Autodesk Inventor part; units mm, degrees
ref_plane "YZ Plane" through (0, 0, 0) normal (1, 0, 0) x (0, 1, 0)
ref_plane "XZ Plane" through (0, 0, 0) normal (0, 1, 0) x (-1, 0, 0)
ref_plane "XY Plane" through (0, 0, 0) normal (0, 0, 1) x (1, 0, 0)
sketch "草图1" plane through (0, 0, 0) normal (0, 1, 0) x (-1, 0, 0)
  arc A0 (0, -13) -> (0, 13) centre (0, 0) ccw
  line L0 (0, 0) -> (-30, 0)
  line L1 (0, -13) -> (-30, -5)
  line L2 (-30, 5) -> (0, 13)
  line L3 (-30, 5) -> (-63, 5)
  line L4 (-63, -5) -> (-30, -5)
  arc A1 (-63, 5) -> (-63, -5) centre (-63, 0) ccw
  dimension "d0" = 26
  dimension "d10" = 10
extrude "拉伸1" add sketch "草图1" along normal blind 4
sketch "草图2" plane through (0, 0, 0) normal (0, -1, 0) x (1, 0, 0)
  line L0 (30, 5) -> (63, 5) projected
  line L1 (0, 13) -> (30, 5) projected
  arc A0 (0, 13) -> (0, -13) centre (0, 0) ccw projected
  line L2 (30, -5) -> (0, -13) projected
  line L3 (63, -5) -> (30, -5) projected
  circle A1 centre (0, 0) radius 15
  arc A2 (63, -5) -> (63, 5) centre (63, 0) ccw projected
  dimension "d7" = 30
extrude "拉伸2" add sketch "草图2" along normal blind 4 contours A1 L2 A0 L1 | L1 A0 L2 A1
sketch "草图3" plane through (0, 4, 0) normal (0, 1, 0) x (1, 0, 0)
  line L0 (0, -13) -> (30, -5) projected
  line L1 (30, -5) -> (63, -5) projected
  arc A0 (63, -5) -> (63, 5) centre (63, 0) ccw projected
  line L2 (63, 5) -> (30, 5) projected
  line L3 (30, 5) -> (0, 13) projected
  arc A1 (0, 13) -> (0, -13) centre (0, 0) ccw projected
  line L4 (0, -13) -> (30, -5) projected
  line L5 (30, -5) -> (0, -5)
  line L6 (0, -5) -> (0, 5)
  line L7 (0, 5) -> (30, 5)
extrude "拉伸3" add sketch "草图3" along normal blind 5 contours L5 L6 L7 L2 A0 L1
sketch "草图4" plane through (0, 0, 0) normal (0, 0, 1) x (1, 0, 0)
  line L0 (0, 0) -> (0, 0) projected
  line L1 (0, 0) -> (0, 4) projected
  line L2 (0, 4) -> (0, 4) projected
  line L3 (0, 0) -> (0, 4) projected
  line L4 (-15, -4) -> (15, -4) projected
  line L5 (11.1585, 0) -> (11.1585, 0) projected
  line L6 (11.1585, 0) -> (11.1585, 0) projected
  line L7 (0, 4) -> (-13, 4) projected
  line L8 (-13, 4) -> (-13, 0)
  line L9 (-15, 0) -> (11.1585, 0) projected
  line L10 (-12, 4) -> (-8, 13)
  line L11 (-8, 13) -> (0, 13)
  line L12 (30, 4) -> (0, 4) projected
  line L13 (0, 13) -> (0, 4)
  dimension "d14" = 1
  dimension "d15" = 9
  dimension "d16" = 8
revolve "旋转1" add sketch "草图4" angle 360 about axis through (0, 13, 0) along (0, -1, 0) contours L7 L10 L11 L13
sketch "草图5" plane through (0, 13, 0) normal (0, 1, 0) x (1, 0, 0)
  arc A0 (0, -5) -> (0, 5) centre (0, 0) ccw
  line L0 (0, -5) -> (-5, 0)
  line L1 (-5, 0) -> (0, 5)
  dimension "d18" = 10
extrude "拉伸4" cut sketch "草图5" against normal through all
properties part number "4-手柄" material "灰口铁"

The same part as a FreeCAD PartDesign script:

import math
import FreeCAD as App
import Part
import Sketcher
from FreeCAD import Vector
Q = App.Units.Quantity

doc = App.newDocument("Part")
params = doc.addObject("Spreadsheet::Sheet", "Params")
for row, (alias, value) in enumerate([
    ("sketch1_radius", "13 mm"),
    ("sketch1_radius2", "5 mm"),
    ("sketch1_width", "33 mm"),
    ("pad1_length", "4 mm"),
    ("sketch2_diameter", "30 mm"),
    ("pad2_length", "4 mm"),
    ("sketch3_radius", "5 mm"),
    ("sketch3_width", "63 mm"),
    ("pad3_length", "5 mm"),
    ("sketch4_width", "8 mm"),
    ("sketch4_height", "9 mm"),
    ("sketch4_width2", "12 mm"),
    ("revolution_angle", "360 deg"),
    ("sketch5_radius", "5 mm"),
], start=1):
    params.set(f"A{row}", alias)
    params.set(f"B{row}", "=" + value)
    params.setAlias(f"B{row}", alias)

body = doc.addObject("PartDesign::Body", "Body")

sketch1 = body.newObject("Sketcher::SketchObject", "Sketch")
sketch1.AttachmentSupport = (doc.getObject("XZ_Plane"), [""])
sketch1.MapMode = "FlatFace"
sketch1.addGeometry(Part.LineSegment(Vector(30, -5, 0), Vector(0, -13, 0)), False)
sketch1.addGeometry(Part.ArcOfCircle(Part.Circle(Vector(0, 0, 0), Vector(0, 0, 1), 13), math.radians(90), math.radians(270)), False)
sketch1.addGeometry(Part.LineSegment(Vector(0, 13, 0), Vector(30, 5, 0)), False)
sketch1.addGeometry(Part.LineSegment(Vector(30, 5, 0), Vector(63, 5, 0)), False)
sketch1.addGeometry(Part.ArcOfCircle(Part.Circle(Vector(63, 0, 0), Vector(0, 0, 1), 5), math.radians(-90), math.radians(90)), False)
sketch1.addGeometry(Part.LineSegment(Vector(63, -5, 0), Vector(30, -5, 0)), False)
sketch1.addConstraint(Sketcher.Constraint("Coincident", 0, 2, 1, 2))
sketch1.addConstraint(Sketcher.Constraint("Coincident", 1, 1, 2, 1))
sketch1.addConstraint(Sketcher.Constraint("Coincident", 2, 2, 3, 1))
sketch1.addConstraint(Sketcher.Constraint("Tangent", 3, 2, 4, 2))
sketch1.addConstraint(Sketcher.Constraint("Tangent", 4, 1, 5, 1))
sketch1.addConstraint(Sketcher.Constraint("Coincident", 5, 2, 0, 1))
sketch1.addConstraint(Sketcher.Constraint("Horizontal", 3))
sketch1.addConstraint(Sketcher.Constraint("Horizontal", 5))
sketch1.addConstraint(Sketcher.Constraint("Coincident", 1, 3, -1, 1))
sketch1.addConstraint(Sketcher.Constraint("Symmetric", 2, 2, 5, 2, -1))
sketch1.addConstraint(Sketcher.Constraint("PointOnObject", 0, 2, -2))
sketch1.addConstraint(Sketcher.Constraint("PointOnObject", 1, 1, -2))
sketch1.addConstraint(Sketcher.Constraint("Radius", 1, Q("13 mm")))
sketch1.addConstraint(Sketcher.Constraint("Radius", 4, Q("5 mm")))
sketch1.addConstraint(Sketcher.Constraint("DistanceX", 3, 1, 3, 2, Q("33 mm")))
sketch1.addConstraint(Sketcher.Constraint("DistanceX", -1, 1, 4, 3, Q("63 mm")))
sketch1.setExpression("Constraints[12]", "Params.sketch1_radius")
sketch1.setExpression("Constraints[13]", "Params.sketch1_radius2")
sketch1.setExpression("Constraints[14]", "Params.sketch1_width")
pad1 = body.newObject("PartDesign::Pad", "Pad")
pad1.Profile = sketch1
pad1.setExpression("Length", "Params.pad1_length")
pad1.Reversed = True

sketch2 = body.newObject("Sketcher::SketchObject", "Sketch001")
sketch2.AttachmentSupport = (doc.getObject("XZ_Plane"), [""])
sketch2.MapMode = "FlatFace"
sketch2.addGeometry(Part.Circle(Vector(0, 0, 0), Vector(0, 0, 1), 15), False)
sketch2.addConstraint(Sketcher.Constraint("Coincident", 0, 3, -1, 1))
sketch2.addConstraint(Sketcher.Constraint("Diameter", 0, Q("30 mm")))
sketch2.setExpression("Constraints[1]", "Params.sketch2_diameter")
pad2 = body.newObject("PartDesign::Pad", "Pad001")
pad2.Profile = sketch2
pad2.setExpression("Length", "Params.pad2_length")

sketch3 = body.newObject("Sketcher::SketchObject", "Sketch002")
sketch3.AttachmentSupport = (doc.getObject("XZ_Plane"), [""])
sketch3.MapMode = "FlatFace"
sketch3.AttachmentOffset = App.Placement(Vector(0, 0, -4), App.Rotation())
sketch3.addGeometry(Part.LineSegment(Vector(0, 5, 0), Vector(63, 5, 0)), False)
sketch3.addGeometry(Part.ArcOfCircle(Part.Circle(Vector(63, 0, 0), Vector(0, 0, 1), 5), math.radians(-90), math.radians(90)), False)
sketch3.addGeometry(Part.LineSegment(Vector(63, -5, 0), Vector(0, -5, 0)), False)
sketch3.addGeometry(Part.LineSegment(Vector(0, -5, 0), Vector(0, 5, 0)), False)
sketch3.addConstraint(Sketcher.Constraint("Tangent", 0, 2, 1, 2))
sketch3.addConstraint(Sketcher.Constraint("Tangent", 1, 1, 2, 1))
sketch3.addConstraint(Sketcher.Constraint("Coincident", 2, 2, 3, 1))
sketch3.addConstraint(Sketcher.Constraint("Coincident", 3, 2, 0, 1))
sketch3.addConstraint(Sketcher.Constraint("Horizontal", 0))
sketch3.addConstraint(Sketcher.Constraint("Horizontal", 2))
sketch3.addConstraint(Sketcher.Constraint("Vertical", 3))
sketch3.addConstraint(Sketcher.Constraint("Symmetric", 2, 2, 3, 2, -1, 1))
sketch3.addConstraint(Sketcher.Constraint("Radius", 1, Q("5 mm")))
sketch3.addConstraint(Sketcher.Constraint("DistanceX", 0, 1, 0, 2, Q("63 mm")))
sketch3.setExpression("Constraints[8]", "Params.sketch3_radius")
sketch3.setExpression("Constraints[9]", "Params.sketch3_width")
pad3 = body.newObject("PartDesign::Pad", "Pad002")
pad3.Profile = sketch3
pad3.setExpression("Length", "Params.pad3_length")
pad3.Reversed = True

sketch4 = body.newObject("Sketcher::SketchObject", "Sketch003")
sketch4.AttachmentSupport = (doc.getObject("XY_Plane"), [""])
sketch4.MapMode = "FlatFace"
sketch4.addGeometry(Part.LineSegment(Vector(-12, 4, 0), Vector(0, 4, 0)), False)
sketch4.addGeometry(Part.LineSegment(Vector(0, 4, 0), Vector(0, 13, 0)), False)
sketch4.addGeometry(Part.LineSegment(Vector(0, 13, 0), Vector(-8, 13, 0)), False)
sketch4.addGeometry(Part.LineSegment(Vector(-8, 13, 0), Vector(-12, 4, 0)), False)
sketch4.addConstraint(Sketcher.Constraint("Coincident", 0, 2, 1, 1))
sketch4.addConstraint(Sketcher.Constraint("Coincident", 1, 2, 2, 1))
sketch4.addConstraint(Sketcher.Constraint("Coincident", 2, 2, 3, 1))
sketch4.addConstraint(Sketcher.Constraint("Coincident", 3, 2, 0, 1))
sketch4.addConstraint(Sketcher.Constraint("Horizontal", 0))
sketch4.addConstraint(Sketcher.Constraint("Vertical", 1))
sketch4.addConstraint(Sketcher.Constraint("Horizontal", 2))
sketch4.addConstraint(Sketcher.Constraint("PointOnObject", 0, 2, -2))
sketch4.addConstraint(Sketcher.Constraint("DistanceX", 2, 2, 2, 1, Q("8 mm")))
sketch4.addConstraint(Sketcher.Constraint("DistanceY", 1, 1, 1, 2, Q("9 mm")))
sketch4.addConstraint(Sketcher.Constraint("DistanceX", 0, 1, 0, 2, Q("12 mm")))
sketch4.addConstraint(Sketcher.Constraint("DistanceY", -1, 1, 0, 2, Q("4 mm")))
sketch4.setExpression("Constraints[8]", "Params.sketch4_width")
sketch4.setExpression("Constraints[9]", "Params.sketch4_height")
sketch4.setExpression("Constraints[10]", "Params.sketch4_width2")
revolution = body.newObject("PartDesign::Revolution", "Revolution")
revolution.Profile = sketch4
revolution.ReferenceAxis = (sketch4, ["V_Axis"])
revolution.setExpression("Angle", "Params.revolution_angle")

sketch5 = body.newObject("Sketcher::SketchObject", "Sketch004")
sketch5.AttachmentSupport = (doc.getObject("XZ_Plane"), [""])
sketch5.MapMode = "FlatFace"
sketch5.AttachmentOffset = App.Placement(Vector(0, 0, -13), App.Rotation())
sketch5.addGeometry(Part.LineSegment(Vector(-5, 0, 0), Vector(0, 5, 0)), False)
sketch5.addGeometry(Part.ArcOfCircle(Part.Circle(Vector(0, 0, 0), Vector(0, 0, 1), 5), math.radians(-90), math.radians(90)), False)
sketch5.addGeometry(Part.LineSegment(Vector(0, -5, 0), Vector(-5, 0, 0)), False)
sketch5.addConstraint(Sketcher.Constraint("Coincident", 0, 2, 1, 2))
sketch5.addConstraint(Sketcher.Constraint("Coincident", 1, 1, 2, 1))
sketch5.addConstraint(Sketcher.Constraint("Coincident", 2, 2, 0, 1))
sketch5.addConstraint(Sketcher.Constraint("Coincident", 1, 3, -1, 1))
sketch5.addConstraint(Sketcher.Constraint("PointOnObject", 0, 2, -2))
sketch5.addConstraint(Sketcher.Constraint("PointOnObject", 1, 1, -2))
sketch5.addConstraint(Sketcher.Constraint("PointOnObject", 2, 2, -1))
sketch5.addConstraint(Sketcher.Constraint("Perpendicular", 0, 2))
sketch5.addConstraint(Sketcher.Constraint("Radius", 1, Q("5 mm")))
sketch5.setExpression("Constraints[8]", "Params.sketch5_radius")
pocket1 = body.newObject("PartDesign::Pocket", "Pocket")
pocket1.Profile = sketch5
pocket1.Type = "ThroughAll"
pocket1.Reversed = True

doc.recompute()
